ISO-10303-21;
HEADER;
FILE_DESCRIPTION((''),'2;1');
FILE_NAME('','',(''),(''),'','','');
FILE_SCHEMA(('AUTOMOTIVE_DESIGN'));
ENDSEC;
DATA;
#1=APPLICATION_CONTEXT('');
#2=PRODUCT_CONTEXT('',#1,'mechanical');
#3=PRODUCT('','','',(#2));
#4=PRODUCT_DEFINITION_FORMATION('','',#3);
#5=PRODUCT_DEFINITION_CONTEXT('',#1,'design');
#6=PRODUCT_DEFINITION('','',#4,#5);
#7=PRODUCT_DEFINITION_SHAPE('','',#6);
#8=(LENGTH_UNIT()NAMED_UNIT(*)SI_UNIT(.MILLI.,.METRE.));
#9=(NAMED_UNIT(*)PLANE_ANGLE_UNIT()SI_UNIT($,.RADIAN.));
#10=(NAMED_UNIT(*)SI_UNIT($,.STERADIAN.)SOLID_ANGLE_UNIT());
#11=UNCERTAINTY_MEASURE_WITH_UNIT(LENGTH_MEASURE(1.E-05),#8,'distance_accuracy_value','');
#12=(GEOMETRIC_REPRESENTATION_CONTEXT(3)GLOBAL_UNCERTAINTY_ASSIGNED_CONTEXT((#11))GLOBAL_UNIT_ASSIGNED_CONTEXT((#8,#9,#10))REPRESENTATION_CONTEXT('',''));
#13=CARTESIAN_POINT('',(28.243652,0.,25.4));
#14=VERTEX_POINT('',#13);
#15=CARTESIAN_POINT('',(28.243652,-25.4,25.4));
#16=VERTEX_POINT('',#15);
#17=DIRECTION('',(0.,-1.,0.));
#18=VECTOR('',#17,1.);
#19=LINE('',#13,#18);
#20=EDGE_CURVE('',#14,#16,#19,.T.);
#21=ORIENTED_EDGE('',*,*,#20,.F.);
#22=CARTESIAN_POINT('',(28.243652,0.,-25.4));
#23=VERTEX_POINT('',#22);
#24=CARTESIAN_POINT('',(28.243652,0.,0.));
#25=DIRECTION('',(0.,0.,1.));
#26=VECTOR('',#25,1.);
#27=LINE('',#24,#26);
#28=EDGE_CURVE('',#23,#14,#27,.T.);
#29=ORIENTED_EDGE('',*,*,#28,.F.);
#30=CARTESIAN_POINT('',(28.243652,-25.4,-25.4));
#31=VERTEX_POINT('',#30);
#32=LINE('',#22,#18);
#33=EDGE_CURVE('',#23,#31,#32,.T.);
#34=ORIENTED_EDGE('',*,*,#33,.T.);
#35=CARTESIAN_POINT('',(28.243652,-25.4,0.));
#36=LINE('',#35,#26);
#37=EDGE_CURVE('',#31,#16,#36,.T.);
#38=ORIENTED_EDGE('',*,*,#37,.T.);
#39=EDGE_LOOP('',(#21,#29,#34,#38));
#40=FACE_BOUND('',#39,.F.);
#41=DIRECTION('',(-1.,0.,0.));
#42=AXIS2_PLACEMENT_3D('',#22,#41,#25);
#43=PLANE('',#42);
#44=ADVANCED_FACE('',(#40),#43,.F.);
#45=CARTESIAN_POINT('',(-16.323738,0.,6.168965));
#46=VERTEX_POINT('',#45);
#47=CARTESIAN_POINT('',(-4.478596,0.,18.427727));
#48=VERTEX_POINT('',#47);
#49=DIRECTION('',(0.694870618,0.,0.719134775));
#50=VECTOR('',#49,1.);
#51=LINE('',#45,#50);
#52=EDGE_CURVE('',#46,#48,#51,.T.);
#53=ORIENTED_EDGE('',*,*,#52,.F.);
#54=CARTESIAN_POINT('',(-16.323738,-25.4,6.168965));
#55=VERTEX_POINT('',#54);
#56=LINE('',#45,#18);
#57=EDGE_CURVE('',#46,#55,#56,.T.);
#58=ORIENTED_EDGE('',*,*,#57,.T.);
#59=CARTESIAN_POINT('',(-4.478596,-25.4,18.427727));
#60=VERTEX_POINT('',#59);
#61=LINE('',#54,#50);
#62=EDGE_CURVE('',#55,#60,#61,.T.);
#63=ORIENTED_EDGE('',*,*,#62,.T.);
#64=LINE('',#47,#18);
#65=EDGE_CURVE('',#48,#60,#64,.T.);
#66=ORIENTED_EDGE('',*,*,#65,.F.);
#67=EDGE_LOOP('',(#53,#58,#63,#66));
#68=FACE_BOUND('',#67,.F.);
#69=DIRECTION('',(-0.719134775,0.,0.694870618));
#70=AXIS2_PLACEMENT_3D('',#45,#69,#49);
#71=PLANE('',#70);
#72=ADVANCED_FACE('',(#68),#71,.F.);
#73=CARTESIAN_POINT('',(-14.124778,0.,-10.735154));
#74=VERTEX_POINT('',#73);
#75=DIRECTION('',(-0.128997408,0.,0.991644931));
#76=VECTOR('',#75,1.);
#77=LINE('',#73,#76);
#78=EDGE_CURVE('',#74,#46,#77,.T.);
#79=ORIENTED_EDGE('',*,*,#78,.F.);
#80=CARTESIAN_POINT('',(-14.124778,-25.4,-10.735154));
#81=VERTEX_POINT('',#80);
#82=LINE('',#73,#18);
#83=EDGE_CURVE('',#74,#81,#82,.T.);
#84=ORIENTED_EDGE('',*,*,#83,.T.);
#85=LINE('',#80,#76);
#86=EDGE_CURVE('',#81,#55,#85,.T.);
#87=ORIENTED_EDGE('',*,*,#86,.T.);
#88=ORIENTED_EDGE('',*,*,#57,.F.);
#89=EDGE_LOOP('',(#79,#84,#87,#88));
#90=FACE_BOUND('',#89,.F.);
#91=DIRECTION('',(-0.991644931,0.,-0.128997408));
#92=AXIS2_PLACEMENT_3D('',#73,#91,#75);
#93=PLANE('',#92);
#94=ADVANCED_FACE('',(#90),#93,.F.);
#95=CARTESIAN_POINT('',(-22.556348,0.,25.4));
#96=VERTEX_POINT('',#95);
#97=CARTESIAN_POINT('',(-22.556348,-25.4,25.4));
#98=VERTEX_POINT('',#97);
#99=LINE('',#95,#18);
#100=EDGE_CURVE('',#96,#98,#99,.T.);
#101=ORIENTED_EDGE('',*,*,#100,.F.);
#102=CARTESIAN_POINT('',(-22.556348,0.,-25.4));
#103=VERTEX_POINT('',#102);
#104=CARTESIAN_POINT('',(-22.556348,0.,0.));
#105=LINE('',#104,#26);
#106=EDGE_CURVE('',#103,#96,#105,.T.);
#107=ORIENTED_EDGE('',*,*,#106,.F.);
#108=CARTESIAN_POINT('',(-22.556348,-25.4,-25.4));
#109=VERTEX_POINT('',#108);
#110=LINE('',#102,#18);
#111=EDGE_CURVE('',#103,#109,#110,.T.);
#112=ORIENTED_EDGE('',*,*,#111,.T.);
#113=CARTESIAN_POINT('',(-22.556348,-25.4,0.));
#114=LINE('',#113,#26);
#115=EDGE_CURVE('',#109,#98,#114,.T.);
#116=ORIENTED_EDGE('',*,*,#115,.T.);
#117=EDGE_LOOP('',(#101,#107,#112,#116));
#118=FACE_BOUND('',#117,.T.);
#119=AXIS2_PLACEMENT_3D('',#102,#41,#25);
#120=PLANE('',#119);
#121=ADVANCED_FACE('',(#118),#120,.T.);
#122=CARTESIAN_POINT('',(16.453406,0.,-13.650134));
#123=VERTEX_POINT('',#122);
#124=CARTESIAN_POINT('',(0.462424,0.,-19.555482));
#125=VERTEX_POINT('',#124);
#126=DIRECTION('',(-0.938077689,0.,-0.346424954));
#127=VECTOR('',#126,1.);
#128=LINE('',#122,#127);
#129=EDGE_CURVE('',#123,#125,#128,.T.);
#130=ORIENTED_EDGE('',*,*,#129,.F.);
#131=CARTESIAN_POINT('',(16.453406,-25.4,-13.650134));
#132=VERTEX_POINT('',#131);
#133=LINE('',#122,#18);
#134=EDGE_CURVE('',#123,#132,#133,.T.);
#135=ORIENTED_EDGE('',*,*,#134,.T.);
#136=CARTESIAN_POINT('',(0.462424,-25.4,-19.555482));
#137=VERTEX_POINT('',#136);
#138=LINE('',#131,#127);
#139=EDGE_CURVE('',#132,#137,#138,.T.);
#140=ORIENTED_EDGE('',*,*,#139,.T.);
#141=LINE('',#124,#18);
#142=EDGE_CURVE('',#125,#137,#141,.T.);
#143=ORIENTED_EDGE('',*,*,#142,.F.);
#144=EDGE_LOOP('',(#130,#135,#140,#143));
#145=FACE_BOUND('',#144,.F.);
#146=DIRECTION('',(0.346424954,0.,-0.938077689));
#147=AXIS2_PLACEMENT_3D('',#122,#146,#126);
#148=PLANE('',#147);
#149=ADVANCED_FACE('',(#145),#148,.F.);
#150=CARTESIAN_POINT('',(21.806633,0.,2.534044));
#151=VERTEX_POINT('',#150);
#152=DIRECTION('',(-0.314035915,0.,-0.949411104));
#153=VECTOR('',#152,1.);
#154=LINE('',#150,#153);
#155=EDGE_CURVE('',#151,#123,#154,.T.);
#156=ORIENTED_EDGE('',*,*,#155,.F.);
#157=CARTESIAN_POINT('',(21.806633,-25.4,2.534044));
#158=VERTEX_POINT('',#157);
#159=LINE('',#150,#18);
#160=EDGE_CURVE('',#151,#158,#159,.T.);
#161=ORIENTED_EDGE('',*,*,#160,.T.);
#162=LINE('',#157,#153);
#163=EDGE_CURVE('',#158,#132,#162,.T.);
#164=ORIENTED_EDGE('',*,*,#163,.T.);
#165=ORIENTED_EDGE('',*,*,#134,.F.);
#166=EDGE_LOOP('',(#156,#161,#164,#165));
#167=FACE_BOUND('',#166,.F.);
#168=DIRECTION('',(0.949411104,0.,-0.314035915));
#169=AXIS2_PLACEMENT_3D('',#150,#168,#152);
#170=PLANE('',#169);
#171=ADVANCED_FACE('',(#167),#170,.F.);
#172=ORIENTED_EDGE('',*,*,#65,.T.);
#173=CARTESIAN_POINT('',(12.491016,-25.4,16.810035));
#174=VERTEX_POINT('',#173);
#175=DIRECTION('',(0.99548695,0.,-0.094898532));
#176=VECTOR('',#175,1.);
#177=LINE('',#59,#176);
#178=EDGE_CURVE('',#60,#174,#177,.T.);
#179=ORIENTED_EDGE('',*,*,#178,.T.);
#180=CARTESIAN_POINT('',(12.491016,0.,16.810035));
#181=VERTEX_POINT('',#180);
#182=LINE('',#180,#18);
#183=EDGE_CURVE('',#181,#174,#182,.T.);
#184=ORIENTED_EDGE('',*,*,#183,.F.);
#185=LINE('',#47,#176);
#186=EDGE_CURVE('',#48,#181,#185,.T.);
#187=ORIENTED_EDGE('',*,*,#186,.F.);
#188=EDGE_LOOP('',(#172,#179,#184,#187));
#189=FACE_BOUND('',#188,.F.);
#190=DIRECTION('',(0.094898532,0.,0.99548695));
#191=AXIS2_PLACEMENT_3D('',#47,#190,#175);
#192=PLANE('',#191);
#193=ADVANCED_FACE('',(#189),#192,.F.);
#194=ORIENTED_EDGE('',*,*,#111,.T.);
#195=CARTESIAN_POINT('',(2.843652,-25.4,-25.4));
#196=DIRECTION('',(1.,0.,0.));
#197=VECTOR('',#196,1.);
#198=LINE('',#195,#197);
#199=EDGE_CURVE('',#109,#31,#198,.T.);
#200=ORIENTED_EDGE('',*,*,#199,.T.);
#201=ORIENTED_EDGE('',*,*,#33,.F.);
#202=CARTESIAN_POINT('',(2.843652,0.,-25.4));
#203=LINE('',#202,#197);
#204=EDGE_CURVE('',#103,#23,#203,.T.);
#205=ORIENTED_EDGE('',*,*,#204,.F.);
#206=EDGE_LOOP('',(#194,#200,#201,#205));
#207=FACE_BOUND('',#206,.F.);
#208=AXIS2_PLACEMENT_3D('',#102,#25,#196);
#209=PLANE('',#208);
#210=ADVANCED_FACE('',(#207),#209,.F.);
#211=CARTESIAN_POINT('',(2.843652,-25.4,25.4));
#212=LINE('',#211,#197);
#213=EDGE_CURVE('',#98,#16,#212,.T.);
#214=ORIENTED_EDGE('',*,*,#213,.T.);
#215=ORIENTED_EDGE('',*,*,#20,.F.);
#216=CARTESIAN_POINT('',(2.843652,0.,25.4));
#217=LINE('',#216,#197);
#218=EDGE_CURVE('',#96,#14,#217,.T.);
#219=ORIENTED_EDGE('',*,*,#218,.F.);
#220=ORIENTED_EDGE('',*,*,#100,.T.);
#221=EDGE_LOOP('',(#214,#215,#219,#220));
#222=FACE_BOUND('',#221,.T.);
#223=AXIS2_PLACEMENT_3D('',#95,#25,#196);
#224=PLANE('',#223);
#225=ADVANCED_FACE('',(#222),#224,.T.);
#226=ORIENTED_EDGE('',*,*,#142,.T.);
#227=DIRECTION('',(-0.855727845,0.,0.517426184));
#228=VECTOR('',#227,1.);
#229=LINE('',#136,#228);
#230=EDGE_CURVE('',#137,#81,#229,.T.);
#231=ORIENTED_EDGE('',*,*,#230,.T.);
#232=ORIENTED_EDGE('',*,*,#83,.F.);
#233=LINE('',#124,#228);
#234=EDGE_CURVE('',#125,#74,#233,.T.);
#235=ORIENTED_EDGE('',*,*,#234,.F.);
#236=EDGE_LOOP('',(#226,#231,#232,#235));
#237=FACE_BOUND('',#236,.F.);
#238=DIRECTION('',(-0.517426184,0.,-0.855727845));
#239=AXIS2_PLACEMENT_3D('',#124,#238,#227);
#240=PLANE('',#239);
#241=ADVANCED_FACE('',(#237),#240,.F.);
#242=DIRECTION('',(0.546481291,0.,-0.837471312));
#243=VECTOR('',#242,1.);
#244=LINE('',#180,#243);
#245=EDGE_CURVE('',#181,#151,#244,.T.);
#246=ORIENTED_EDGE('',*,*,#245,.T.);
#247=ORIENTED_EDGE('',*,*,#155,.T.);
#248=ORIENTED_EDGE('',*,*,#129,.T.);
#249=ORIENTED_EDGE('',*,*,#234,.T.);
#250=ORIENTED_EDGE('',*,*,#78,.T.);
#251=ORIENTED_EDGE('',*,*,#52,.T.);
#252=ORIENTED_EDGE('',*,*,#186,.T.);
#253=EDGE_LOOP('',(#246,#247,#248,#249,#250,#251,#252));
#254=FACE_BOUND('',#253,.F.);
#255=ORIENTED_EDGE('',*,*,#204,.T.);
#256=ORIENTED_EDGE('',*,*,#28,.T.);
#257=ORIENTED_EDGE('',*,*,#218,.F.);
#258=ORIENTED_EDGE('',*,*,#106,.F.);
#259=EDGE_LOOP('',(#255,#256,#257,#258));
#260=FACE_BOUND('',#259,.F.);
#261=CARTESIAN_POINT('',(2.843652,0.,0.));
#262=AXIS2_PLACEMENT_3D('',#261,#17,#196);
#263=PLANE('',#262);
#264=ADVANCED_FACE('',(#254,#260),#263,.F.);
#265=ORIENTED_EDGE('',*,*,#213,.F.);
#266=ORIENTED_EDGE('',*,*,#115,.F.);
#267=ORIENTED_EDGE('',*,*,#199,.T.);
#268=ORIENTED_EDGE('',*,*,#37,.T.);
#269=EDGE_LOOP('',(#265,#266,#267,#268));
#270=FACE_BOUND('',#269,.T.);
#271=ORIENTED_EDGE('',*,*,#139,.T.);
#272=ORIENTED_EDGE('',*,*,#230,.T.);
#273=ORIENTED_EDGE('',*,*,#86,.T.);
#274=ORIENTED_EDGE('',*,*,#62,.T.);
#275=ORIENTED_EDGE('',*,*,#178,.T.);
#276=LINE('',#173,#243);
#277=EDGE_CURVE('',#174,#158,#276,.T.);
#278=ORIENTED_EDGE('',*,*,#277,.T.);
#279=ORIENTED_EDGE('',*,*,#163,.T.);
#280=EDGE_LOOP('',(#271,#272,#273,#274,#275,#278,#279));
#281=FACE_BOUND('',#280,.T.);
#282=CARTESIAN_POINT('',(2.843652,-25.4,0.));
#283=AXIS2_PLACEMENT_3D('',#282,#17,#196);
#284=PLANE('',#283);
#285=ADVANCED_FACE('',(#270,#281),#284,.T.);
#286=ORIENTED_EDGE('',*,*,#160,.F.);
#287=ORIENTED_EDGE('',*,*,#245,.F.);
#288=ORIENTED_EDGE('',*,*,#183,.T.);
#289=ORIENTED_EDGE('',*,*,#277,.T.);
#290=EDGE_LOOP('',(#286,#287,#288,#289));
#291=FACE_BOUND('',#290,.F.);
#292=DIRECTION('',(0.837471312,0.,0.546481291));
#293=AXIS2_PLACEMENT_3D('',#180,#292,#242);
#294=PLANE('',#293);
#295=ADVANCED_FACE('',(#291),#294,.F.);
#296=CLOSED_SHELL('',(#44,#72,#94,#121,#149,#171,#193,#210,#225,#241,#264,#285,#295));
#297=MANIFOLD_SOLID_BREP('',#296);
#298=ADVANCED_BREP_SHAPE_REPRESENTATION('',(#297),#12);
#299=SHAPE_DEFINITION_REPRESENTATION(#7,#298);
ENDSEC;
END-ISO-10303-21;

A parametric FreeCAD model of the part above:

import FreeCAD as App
import Part
import Sketcher
from FreeCAD import Vector
Q = App.Units.Quantity


def add_polygon(sketch, points):
    """Adds a closed chain of lines whose ends are joined by coincident constraints."""
    first, n = sketch.GeometryCount, len(points)
    for a, b in zip(points, points[1:] + points[:1]):
        sketch.addGeometry(Part.LineSegment(App.Vector(*a, 0), App.Vector(*b, 0)), False)
    for i in range(n):
        sketch.addConstraint(Sketcher.Constraint("Coincident", first + i, 2, first + (i + 1) % n, 1))

doc = App.newDocument("Part")
params = doc.addObject("Spreadsheet::Sheet", "Params")
for row, (alias, value) in enumerate([
    ("sketch1_width", "2 in"),
    ("pad1_length", "1 in"),
], start=1):
    params.set(f"A{row}", alias)
    params.set(f"B{row}", "=" + value)
    params.setAlias(f"B{row}", alias)

body = doc.addObject("PartDesign::Body", "Body")

# Sketch on XZ plane
sketch1 = doc.addObject("Sketcher::SketchObject", "Sketch")
body.addObject(sketch1)
sketch1.AttachmentSupport = (doc.XZ_Plane, [""])
sketch1.MapMode = "FlatFace"
add_polygon(sketch1, [(-22.556348, 25.4), (-22.556348, -25.4), (28.243652, -25.4), (28.243652, 25.4)])  # lines 0-3
add_polygon(sketch1, [(-4.478596, 18.427727), (12.491016, 16.810035), (21.806633, 2.534044), (16.453406, -13.650134), (0.462424, -19.555482), (-14.124778, -10.735154), (-16.323738, 6.168965)])  # lines 4-10
sketch1.addConstraint([
    Sketcher.Constraint("Vertical", 0),
    Sketcher.Constraint("Horizontal", 1),
    Sketcher.Constraint("Vertical", 2),
    Sketcher.Constraint("Horizontal", 3),
    Sketcher.Constraint("Equal", 3, 0),
    Sketcher.Constraint("Equal", 4, 5),
    Sketcher.Constraint("Equal", 5, 6),
    Sketcher.Constraint("Equal", 6, 7),
    Sketcher.Constraint("Equal", 7, 8),
    Sketcher.Constraint("Equal", 8, 9),
    Sketcher.Constraint("Equal", 9, 10),
    Sketcher.Constraint("DistanceX", 1, 1, 1, 2, Q("2 in")),
    Sketcher.Constraint("DistanceY", 0, 2, -1, 1, Q("1 in")),
    Sketcher.Constraint("DistanceX", 0, 2, -1, 1, 22.556348),
    Sketcher.Constraint("DistanceY", 5, 2, 4, 2, 14.275991),
    Sketcher.Constraint("DistanceX", 5, 2, 2, 2, 6.437019),
    Sketcher.Constraint("DistanceX", 4, 2, 6, 2, 3.96239),
    Sketcher.Constraint("DistanceY", 6, 2, 4, 2, 30.460169),
    Sketcher.Constraint("DistanceY", 7, 2, 6, 2, 5.905348),
    Sketcher.Constraint("DistanceX", 0, 2, 8, 2, 8.43157),
    Sketcher.Constraint("DistanceX", 9, 2, 8, 2, 2.19896),
    Sketcher.Constraint("DistanceY", -1, 1, 4, 2, 16.810035),
])
sketch1.setExpression("Constraints[22]", "Params.sketch1_width")
pad1 = doc.addObject("PartDesign::Pad", "Pad")
body.addObject(pad1)
pad1.Profile = sketch1
pad1.setExpression("Length", "Params.pad1_length")

doc.recompute()
